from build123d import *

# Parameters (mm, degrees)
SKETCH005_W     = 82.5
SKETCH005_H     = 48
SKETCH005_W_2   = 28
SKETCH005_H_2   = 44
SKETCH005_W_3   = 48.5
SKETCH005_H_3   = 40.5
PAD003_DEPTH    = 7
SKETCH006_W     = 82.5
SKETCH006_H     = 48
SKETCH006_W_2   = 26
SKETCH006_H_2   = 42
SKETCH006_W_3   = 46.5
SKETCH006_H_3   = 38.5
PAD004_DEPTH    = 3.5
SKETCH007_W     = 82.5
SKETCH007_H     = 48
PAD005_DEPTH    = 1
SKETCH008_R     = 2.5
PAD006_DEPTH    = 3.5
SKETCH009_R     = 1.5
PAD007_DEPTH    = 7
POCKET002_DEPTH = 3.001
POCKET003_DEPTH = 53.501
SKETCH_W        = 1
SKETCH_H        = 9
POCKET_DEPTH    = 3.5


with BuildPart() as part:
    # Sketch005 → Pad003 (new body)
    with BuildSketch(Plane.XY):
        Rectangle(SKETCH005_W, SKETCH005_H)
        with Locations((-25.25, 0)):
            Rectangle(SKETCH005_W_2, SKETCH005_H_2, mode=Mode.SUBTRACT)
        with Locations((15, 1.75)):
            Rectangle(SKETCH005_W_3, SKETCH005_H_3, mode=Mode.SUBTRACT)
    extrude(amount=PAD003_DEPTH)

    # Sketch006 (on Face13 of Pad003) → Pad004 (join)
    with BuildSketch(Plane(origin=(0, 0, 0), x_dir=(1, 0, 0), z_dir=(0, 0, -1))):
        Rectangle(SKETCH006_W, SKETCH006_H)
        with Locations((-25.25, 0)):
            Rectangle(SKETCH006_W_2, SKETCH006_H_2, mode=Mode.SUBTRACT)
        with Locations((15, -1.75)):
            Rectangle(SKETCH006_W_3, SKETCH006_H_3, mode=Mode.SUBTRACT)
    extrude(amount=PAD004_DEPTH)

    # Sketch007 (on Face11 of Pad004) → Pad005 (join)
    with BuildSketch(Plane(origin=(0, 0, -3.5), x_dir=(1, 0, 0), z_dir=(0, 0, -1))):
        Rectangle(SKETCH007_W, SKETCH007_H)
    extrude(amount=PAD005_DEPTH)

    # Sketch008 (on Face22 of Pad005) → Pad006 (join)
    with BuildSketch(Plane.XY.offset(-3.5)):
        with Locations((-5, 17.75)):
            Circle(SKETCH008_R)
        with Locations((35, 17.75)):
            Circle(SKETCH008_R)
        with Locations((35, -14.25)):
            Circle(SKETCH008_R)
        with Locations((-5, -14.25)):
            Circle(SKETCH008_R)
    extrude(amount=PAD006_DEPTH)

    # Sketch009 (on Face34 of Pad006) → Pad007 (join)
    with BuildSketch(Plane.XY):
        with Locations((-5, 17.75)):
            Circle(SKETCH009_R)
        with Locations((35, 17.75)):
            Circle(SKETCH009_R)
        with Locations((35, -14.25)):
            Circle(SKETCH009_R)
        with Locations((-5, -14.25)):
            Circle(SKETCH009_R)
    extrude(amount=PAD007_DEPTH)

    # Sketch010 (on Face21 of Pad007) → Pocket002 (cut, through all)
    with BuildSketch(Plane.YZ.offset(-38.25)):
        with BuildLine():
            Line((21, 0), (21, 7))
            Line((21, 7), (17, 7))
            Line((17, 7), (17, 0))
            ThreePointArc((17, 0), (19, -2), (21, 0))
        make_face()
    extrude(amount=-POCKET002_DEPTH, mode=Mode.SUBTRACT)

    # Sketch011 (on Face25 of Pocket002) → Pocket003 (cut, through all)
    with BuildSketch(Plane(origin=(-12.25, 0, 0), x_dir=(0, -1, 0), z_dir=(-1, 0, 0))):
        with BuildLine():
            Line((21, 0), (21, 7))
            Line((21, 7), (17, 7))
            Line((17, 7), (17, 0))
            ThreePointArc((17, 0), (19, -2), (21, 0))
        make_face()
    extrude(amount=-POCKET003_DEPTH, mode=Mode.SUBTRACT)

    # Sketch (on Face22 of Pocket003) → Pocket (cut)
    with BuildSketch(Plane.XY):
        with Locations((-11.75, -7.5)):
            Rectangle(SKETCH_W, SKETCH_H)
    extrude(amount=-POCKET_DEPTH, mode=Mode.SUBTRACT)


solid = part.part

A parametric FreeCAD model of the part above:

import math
import FreeCAD as App
import Part
import Sketcher

doc = App.newDocument("Part")
body = doc.addObject("PartDesign::Body", "Body")

# Sketch on XY plane
sketch1 = doc.addObject("Sketcher::SketchObject", "Sketch")
body.addObject(sketch1)
sketch1.AttachmentSupport = (doc.XY_Plane, [""])
sketch1.MapMode = "FlatFace"
sketch1.addGeometry(Part.LineSegment(App.Vector(-41, 24, 0), App.Vector(-41, -24, 0)), False)
sketch1.addGeometry(Part.LineSegment(App.Vector(-41, -24, 0), App.Vector(41, -24, 0)), False)
sketch1.addGeometry(Part.LineSegment(App.Vector(41, -24, 0), App.Vector(41, 24, 0)), False)
sketch1.addGeometry(Part.LineSegment(App.Vector(41, 24, 0), App.Vector(-41, 24, 0)), False)
sketch1.addGeometry(Part.LineSegment(App.Vector(-11, -22, 0), App.Vector(-39, -22, 0)), False)
sketch1.addGeometry(Part.LineSegment(App.Vector(-39, -22, 0), App.Vector(-39, 22, 0)), False)
sketch1.addGeometry(Part.LineSegment(App.Vector(-39, 22, 0), App.Vector(-11, 22, 0)), False)
sketch1.addGeometry(Part.LineSegment(App.Vector(-11, 22, 0), App.Vector(-11, -22, 0)), False)
sketch1.addGeometry(Part.LineSegment(App.Vector(39, -18, 0), App.Vector(-9, -18, 0)), False)
sketch1.addGeometry(Part.LineSegment(App.Vector(-9, -18, 0), App.Vector(-9, 22, 0)), False)
sketch1.addGeometry(Part.LineSegment(App.Vector(-9, 22, 0), App.Vector(39, 22, 0)), False)
sketch1.addGeometry(Part.LineSegment(App.Vector(39, 22, 0), App.Vector(39, -18, 0)), False)
sketch1.addConstraint(Sketcher.Constraint("Coincident", 0, 2, 1, 1))
sketch1.addConstraint(Sketcher.Constraint("Coincident", 1, 2, 2, 1))
sketch1.addConstraint(Sketcher.Constraint("Coincident", 2, 2, 3, 1))
sketch1.addConstraint(Sketcher.Constraint("Coincident", 3, 2, 0, 1))
sketch1.addConstraint(Sketcher.Constraint("Coincident", 4, 2, 5, 1))
sketch1.addConstraint(Sketcher.Constraint("Coincident", 5, 2, 6, 1))
sketch1.addConstraint(Sketcher.Constraint("Coincident", 6, 2, 7, 1))
sketch1.addConstraint(Sketcher.Constraint("Coincident", 7, 2, 4, 1))
sketch1.addConstraint(Sketcher.Constraint("Coincident", 8, 2, 9, 1))
sketch1.addConstraint(Sketcher.Constraint("Coincident", 9, 2, 10, 1))
sketch1.addConstraint(Sketcher.Constraint("Coincident", 10, 2, 11, 1))
sketch1.addConstraint(Sketcher.Constraint("Coincident", 11, 2, 8, 1))
sketch1.addConstraint(Sketcher.Constraint("Vertical", 0))
sketch1.addConstraint(Sketcher.Constraint("Horizontal", 1))
sketch1.addConstraint(Sketcher.Constraint("Vertical", 2))
sketch1.addConstraint(Sketcher.Constraint("Horizontal", 3))
sketch1.addConstraint(Sketcher.Constraint("Horizontal", 4))
sketch1.addConstraint(Sketcher.Constraint("Vertical", 5))
sketch1.addConstraint(Sketcher.Constraint("Horizontal", 6))
sketch1.addConstraint(Sketcher.Constraint("Vertical", 7))
sketch1.addConstraint(Sketcher.Constraint("Horizontal", 8))
sketch1.addConstraint(Sketcher.Constraint("Vertical", 9))
sketch1.addConstraint(Sketcher.Constraint("Horizontal", 10))
sketch1.addConstraint(Sketcher.Constraint("Vertical", 11))
sketch1.addConstraint(Sketcher.Constraint("Symmetric", 0, 2, 2, 2, -1, 1))
sketch1.addConstraint(Sketcher.Constraint("Symmetric", 4, 2, 10, 2, -1, 1))
sketch1.addConstraint(Sketcher.Constraint("Horizontal", 6, 2, 9, 2))
sketch1.addConstraint(Sketcher.Constraint("DistanceX", 4, 2, 4, 1, 28.0))
sketch1.addConstraint(Sketcher.Constraint("DistanceY", 0, 2, 0, 1, 48.0))
sketch1.addConstraint(Sketcher.Constraint("DistanceY", 5, 1, 5, 2, 44.0))
sketch1.addConstraint(Sketcher.Constraint("DistanceX", 1, 1, 1, 2, 82.5))
sketch1.addConstraint(Sketcher.Constraint("DistanceX", 8, 2, 8, 1, 48.5))
sketch1.addConstraint(Sketcher.Constraint("DistanceY", 9, 1, 9, 2, 40.5))
sketch1.addConstraint(Sketcher.Constraint("DistanceX", 0, 2, 4, 2, 2.0))
pad1 = doc.addObject("PartDesign::Pad", "Pad")
body.addObject(pad1)
pad1.Profile = sketch1
pad1.Length = 7

# Sketch on XY plane
sketch2 = doc.addObject("Sketcher::SketchObject", "Sketch001")
body.addObject(sketch2)
sketch2.AttachmentSupport = (doc.XY_Plane, [""])
sketch2.MapMode = "FlatFace"
sketch2.addGeometry(Part.LineSegment(App.Vector(-41, -24, 0), App.Vector(-41, 24, 0)), False)
sketch2.addGeometry(Part.LineSegment(App.Vector(-41, 24, 0), App.Vector(41, 24, 0)), False)
sketch2.addGeometry(Part.LineSegment(App.Vector(41, 24, 0), App.Vector(41, -24, 0)), False)
sketch2.addGeometry(Part.LineSegment(App.Vector(41, -24, 0), App.Vector(-41, -24, 0)), False)
sketch2.addGeometry(Part.LineSegment(App.Vector(38, 21, 0), App.Vector(-8, 21, 0)), False)
sketch2.addGeometry(Part.LineSegment(App.Vector(-8, 21, 0), App.Vector(-8, -18, 0)), False)
sketch2.addGeometry(Part.LineSegment(App.Vector(-8, -18, 0), App.Vector(38, -18, 0)), False)
sketch2.addGeometry(Part.LineSegment(App.Vector(38, -18, 0), App.Vector(38, 21, 0)), False)
sketch2.addGeometry(Part.LineSegment(App.Vector(-12, 21, 0), App.Vector(-38, 21, 0)), False)
sketch2.addGeometry(Part.LineSegment(App.Vector(-38, 21, 0), App.Vector(-38, -21, 0)), False)
sketch2.addGeometry(Part.LineSegment(App.Vector(-38, -21, 0), App.Vector(-12, -21, 0)), False)
sketch2.addGeometry(Part.LineSegment(App.Vector(-12, -21, 0), App.Vector(-12, 21, 0)), False)
sketch2.addConstraint(Sketcher.Constraint("Coincident", 0, 2, 1, 1))
sketch2.addConstraint(Sketcher.Constraint("Coincident", 1, 2, 2, 1))
sketch2.addConstraint(Sketcher.Constraint("Coincident", 2, 2, 3, 1))
sketch2.addConstraint(Sketcher.Constraint("Coincident", 3, 2, 0, 1))
sketch2.addConstraint(Sketcher.Constraint("Coincident", 4, 2, 5, 1))
sketch2.addConstraint(Sketcher.Constraint("Coincident", 5, 2, 6, 1))
sketch2.addConstraint(Sketcher.Constraint("Coincident", 6, 2, 7, 1))
sketch2.addConstraint(Sketcher.Constraint("Coincident", 7, 2, 4, 1))
sketch2.addConstraint(Sketcher.Constraint("Coincident", 8, 2, 9, 1))
sketch2.addConstraint(Sketcher.Constraint("Coincident", 9, 2, 10, 1))
sketch2.addConstraint(Sketcher.Constraint("Coincident", 10, 2, 11, 1))
sketch2.addConstraint(Sketcher.Constraint("Coincident", 11, 2, 8, 1))
sketch2.addConstraint(Sketcher.Constraint("Vertical", 0))
sketch2.addConstraint(Sketcher.Constraint("Horizontal", 1))
sketch2.addConstraint(Sketcher.Constraint("Vertical", 2))
sketch2.addConstraint(Sketcher.Constraint("Horizontal", 3))
sketch2.addConstraint(Sketcher.Constraint("Horizontal", 4))
sketch2.addConstraint(Sketcher.Constraint("Vertical", 5))
sketch2.addConstraint(Sketcher.Constraint("Horizontal", 6))
sketch2.addConstraint(Sketcher.Constraint("Vertical", 7))
sketch2.addConstraint(Sketcher.Constraint("Horizontal", 8))
sketch2.addConstraint(Sketcher.Constraint("Vertical", 9))
sketch2.addConstraint(Sketcher.Constraint("Horizontal", 10))
sketch2.addConstraint(Sketcher.Constraint("Vertical", 11))
sketch2.addConstraint(Sketcher.Constraint("Symmetric", 0, 2, 2, 2, -1, 1))
sketch2.addConstraint(Sketcher.Constraint("Symmetric", 7, 2, 9, 2, -1, 1))
sketch2.addConstraint(Sketcher.Constraint("Horizontal", 7, 2, 8, 2))
sketch2.addConstraint(Sketcher.Constraint("DistanceX", 8, 2, 8, 1, 26.0))
sketch2.addConstraint(Sketcher.Constraint("DistanceY", 0, 1, 0, 2, 48.0))
sketch2.addConstraint(Sketcher.Constraint("DistanceY", 9, 2, 9, 1, 42.0))
sketch2.addConstraint(Sketcher.Constraint("DistanceX", 1, 1, 1, 2, 82.5))
sketch2.addConstraint(Sketcher.Constraint("DistanceX", 4, 2, 4, 1, 46.5))
sketch2.addConstraint(Sketcher.Constraint("DistanceY", 5, 2, 5, 1, 38.5))
sketch2.addConstraint(Sketcher.Constraint("DistanceX", 0, 2, 4, 2, 33.0))
pad2 = doc.addObject("PartDesign::Pad", "Pad001")
body.addObject(pad2)
pad2.Profile = sketch2
pad2.Length = 3.5
pad2.Reversed = True

# Sketch on XY plane
sketch3 = doc.addObject("Sketcher::SketchObject", "Sketch002")
body.addObject(sketch3)
sketch3.AttachmentSupport = (doc.XY_Plane, [""])
sketch3.MapMode = "FlatFace"
sketch3.AttachmentOffset = App.Placement(App.Vector(0, 0, -3.5), App.Rotation())
sketch3.addGeometry(Part.LineSegment(App.Vector(-41, -24, 0), App.Vector(-41, 24, 0)), False)
sketch3.addGeometry(Part.LineSegment(App.Vector(-41, 24, 0), App.Vector(41, 24, 0)), False)
sketch3.addGeometry(Part.LineSegment(App.Vector(41, 24, 0), App.Vector(41, -24, 0)), False)
sketch3.addGeometry(Part.LineSegment(App.Vector(41, -24, 0), App.Vector(-41, -24, 0)), False)
sketch3.addConstraint(Sketcher.Constraint("Coincident", 0, 2, 1, 1))
sketch3.addConstraint(Sketcher.Constraint("Coincident", 1, 2, 2, 1))
sketch3.addConstraint(Sketcher.Constraint("Coincident", 2, 2, 3, 1))
sketch3.addConstraint(Sketcher.Constraint("Coincident", 3, 2, 0, 1))
sketch3.addConstraint(Sketcher.Constraint("Vertical", 0))
sketch3.addConstraint(Sketcher.Constraint("Horizontal", 1))
sketch3.addConstraint(Sketcher.Constraint("Vertical", 2))
sketch3.addConstraint(Sketcher.Constraint("Horizontal", 3))
sketch3.addConstraint(Sketcher.Constraint("Symmetric", 0, 2, 2, 2, -1, 1))
sketch3.addConstraint(Sketcher.Constraint("DistanceY", 0, 1, 0, 2, 48.0))
sketch3.addConstraint(Sketcher.Constraint("DistanceX", 1, 1, 1, 2, 82.5))
pad3 = doc.addObject("PartDesign::Pad", "Pad002")
body.addObject(pad3)
pad3.Profile = sketch3
pad3.Length = 1
pad3.Reversed = True

# Sketch on XY plane
sketch4 = doc.addObject("Sketcher::SketchObject", "Sketch003")
body.addObject(sketch4)
sketch4.AttachmentSupport = (doc.XY_Plane, [""])
sketch4.MapMode = "FlatFace"
sketch4.AttachmentOffset = App.Placement(App.Vector(0, 0, -3.5), App.Rotation())
sketch4.addGeometry(Part.Circle(App.Vector(-5, 17.8, 0), App.Vector(0, 0, 1), 2.5), False)
sketch4.addGeometry(Part.Circle(App.Vector(35, 17.8, 0), App.Vector(0, 0, 1), 2.5), False)
sketch4.addGeometry(Part.Circle(App.Vector(35, -14.2, 0), App.Vector(0, 0, 1), 2.5), False)
sketch4.addGeometry(Part.Circle(App.Vector(-5, -14.2, 0), App.Vector(0, 0, 1), 2.5), False)
sketch4.addConstraint(Sketcher.Constraint("Equal", 0, 1))
sketch4.addConstraint(Sketcher.Constraint("Equal", 1, 2))
sketch4.addConstraint(Sketcher.Constraint("Equal", 2, 3))
sketch4.addConstraint(Sketcher.Constraint("Horizontal", 0, 3, 1, 3))
sketch4.addConstraint(Sketcher.Constraint("Horizontal", 2, 3, 3, 3))
sketch4.addConstraint(Sketcher.Constraint("Vertical", 1, 3, 2, 3))
sketch4.addConstraint(Sketcher.Constraint("Vertical", 0, 3, 3, 3))
sketch4.addConstraint(Sketcher.Constraint("Diameter", 0, 5.0))
sketch4.addConstraint(Sketcher.Constraint("DistanceX", 0, 3, -1, 1, 5.0))
sketch4.addConstraint(Sketcher.Constraint("DistanceX", -1, 1, 1, 3, 35.0))
sketch4.addConstraint(Sketcher.Constraint("DistanceY", 2, 3, 1, 3, 32.0))
sketch4.addConstraint(Sketcher.Constraint("DistanceY", -1, 1, 0, 3, 17.75))
pad4 = doc.addObject("PartDesign::Pad", "Pad003")
body.addObject(pad4)
pad4.Profile = sketch4
pad4.Length = 3.5

# Sketch on XY plane
sketch5 = doc.addObject("Sketcher::SketchObject", "Sketch004")
body.addObject(sketch5)
sketch5.AttachmentSupport = (doc.XY_Plane, [""])
sketch5.MapMode = "FlatFace"
sketch5.addGeometry(Part.Circle(App.Vector(-5, 17.8, 0), App.Vector(0, 0, 1), 1.5), False)
sketch5.addGeometry(Part.Circle(App.Vector(35, 17.8, 0), App.Vector(0, 0, 1), 1.5), False)
sketch5.addGeometry(Part.Circle(App.Vector(35, -14.2, 0), App.Vector(0, 0, 1), 1.5), False)
sketch5.addGeometry(Part.Circle(App.Vector(-5, -14.2, 0), App.Vector(0, 0, 1), 1.5), False)
sketch5.addConstraint(Sketcher.Constraint("Equal", 0, 1))
sketch5.addConstraint(Sketcher.Constraint("Equal", 1, 2))
sketch5.addConstraint(Sketcher.Constraint("Equal", 2, 3))
sketch5.addConstraint(Sketcher.Constraint("Horizontal", 0, 3, 1, 3))
sketch5.addConstraint(Sketcher.Constraint("Horizontal", 2, 3, 3, 3))
sketch5.addConstraint(Sketcher.Constraint("Vertical", 1, 3, 2, 3))
sketch5.addConstraint(Sketcher.Constraint("Vertical", 0, 3, 3, 3))
sketch5.addConstraint(Sketcher.Constraint("Diameter", 0, 3.0))
sketch5.addConstraint(Sketcher.Constraint("DistanceX", 0, 3, -1, 1, 5.0))
sketch5.addConstraint(Sketcher.Constraint("DistanceX", -1, 1, 1, 3, 35.0))
sketch5.addConstraint(Sketcher.Constraint("DistanceY", 2, 3, 1, 3, 32.0))
sketch5.addConstraint(Sketcher.Constraint("DistanceY", -1, 1, 0, 3, 17.75))
pad5 = doc.addObject("PartDesign::Pad", "Pad004")
body.addObject(pad5)
pad5.Profile = sketch5
pad5.Length = 7

# Sketch on YZ plane
sketch6 = doc.addObject("Sketcher::SketchObject", "Sketch005")
body.addObject(sketch6)
sketch6.AttachmentSupport = (doc.YZ_Plane, [""])
sketch6.MapMode = "FlatFace"
sketch6.AttachmentOffset = App.Placement(App.Vector(0, 0, -38.25), App.Rotation())
sketch6.addGeometry(Part.LineSegment(App.Vector(21, 0, 0), App.Vector(21, 7, 0)), False)
sketch6.addGeometry(Part.LineSegment(App.Vector(21, 7, 0), App.Vector(17, 7, 0)), False)
sketch6.addGeometry(Part.LineSegment(App.Vector(17, 7, 0), App.Vector(17, 0, 0)), False)
sketch6.addGeometry(Part.ArcOfCircle(Part.Circle(App.Vector(19, 0, 0), App.Vector(0, 0, 1), 2), math.radians(180), math.radians(360)), False)
sketch6.addConstraint(Sketcher.Constraint("Coincident", 0, 2, 1, 1))
sketch6.addConstraint(Sketcher.Constraint("Coincident", 1, 2, 2, 1))
sketch6.addConstraint(Sketcher.Constraint("Tangent", 2, 2, 3, 1))
sketch6.addConstraint(Sketcher.Constraint("Tangent", 3, 2, 0, 1))
sketch6.addConstraint(Sketcher.Constraint("Vertical", 0))
sketch6.addConstraint(Sketcher.Constraint("Horizontal", 1))
sketch6.addConstraint(Sketcher.Constraint("Vertical", 2))
sketch6.addConstraint(Sketcher.Constraint("PointOnObject", 3, 3, -1))
sketch6.addConstraint(Sketcher.Constraint("Radius", 3, 2.0))
sketch6.addConstraint(Sketcher.Constraint("DistanceY", 0, 1, 0, 2, 7.0))
sketch6.addConstraint(Sketcher.Constraint("DistanceX", -1, 1, 3, 3, 19.0))
pocket1 = doc.addObject("PartDesign::Pocket", "Pocket")
body.addObject(pocket1)
pocket1.Profile = sketch6
pocket1.Type = "ThroughAll"

# Sketch on YZ plane
sketch7 = doc.addObject("Sketcher::SketchObject", "Sketch006")
body.addObject(sketch7)
sketch7.AttachmentSupport = (doc.YZ_Plane, [""])
sketch7.MapMode = "FlatFace"
sketch7.AttachmentOffset = App.Placement(App.Vector(0, 0, -12.25), App.Rotation())
sketch7.addGeometry(Part.LineSegment(App.Vector(-21, 0, 0), App.Vector(-21, 7, 0)), False)
sketch7.addGeometry(Part.LineSegment(App.Vector(-21, 7, 0), App.Vector(-17, 7, 0)), False)
sketch7.addGeometry(Part.LineSegment(App.Vector(-17, 7, 0), App.Vector(-17, 0, 0)), False)
sketch7.addGeometry(Part.ArcOfCircle(Part.Circle(App.Vector(-19, 0, 0), App.Vector(0, 0, 1), 2), math.radians(180), math.radians(360)), False)
sketch7.addConstraint(Sketcher.Constraint("Coincident", 0, 2, 1, 1))
sketch7.addConstraint(Sketcher.Constraint("Coincident", 1, 2, 2, 1))
sketch7.addConstraint(Sketcher.Constraint("Tangent", 2, 2, 3, 2))
sketch7.addConstraint(Sketcher.Constraint("Tangent", 3, 1, 0, 1))
sketch7.addConstraint(Sketcher.Constraint("Vertical", 0))
sketch7.addConstraint(Sketcher.Constraint("Horizontal", 1))
sketch7.addConstraint(Sketcher.Constraint("Vertical", 2))
sketch7.addConstraint(Sketcher.Constraint("PointOnObject", 3, 3, -1))
sketch7.addConstraint(Sketcher.Constraint("Radius", 3, 2.0))
sketch7.addConstraint(Sketcher.Constraint("DistanceY", 0, 1, 0, 2, 7.0))
sketch7.addConstraint(Sketcher.Constraint("DistanceX", 3, 3, -1, 1, 19.0))
pocket2 = doc.addObject("PartDesign::Pocket", "Pocket001")
body.addObject(pocket2)
pocket2.Profile = sketch7
pocket2.Type = "ThroughAll"
pocket2.Reversed = True

# Sketch on XY plane
sketch8 = doc.addObject("Sketcher::SketchObject", "Sketch007")
body.addObject(sketch8)
sketch8.AttachmentSupport = (doc.XY_Plane, [""])
sketch8.MapMode = "FlatFace"
sketch8.addGeometry(Part.LineSegment(App.Vector(-12.2, -3, 0), App.Vector(-12.2, -12, 0)), False)
sketch8.addGeometry(Part.LineSegment(App.Vector(-12.2, -12, 0), App.Vector(-11.2, -12, 0)), False)
sketch8.addGeometry(Part.LineSegment(App.Vector(-11.2, -12, 0), App.Vector(-11.2, -3, 0)), False)
sketch8.addGeometry(Part.LineSegment(App.Vector(-11.2, -3, 0), App.Vector(-12.2, -3, 0)), False)
sketch8.addConstraint(Sketcher.Constraint("Coincident", 0, 2, 1, 1))
sketch8.addConstraint(Sketcher.Constraint("Coincident", 1, 2, 2, 1))
sketch8.addConstraint(Sketcher.Constraint("Coincident", 2, 2, 3, 1))
sketch8.addConstraint(Sketcher.Constraint("Coincident", 3, 2, 0, 1))
sketch8.addConstraint(Sketcher.Constraint("Vertical", 0))
sketch8.addConstraint(Sketcher.Constraint("Horizontal", 1))
sketch8.addConstraint(Sketcher.Constraint("Vertical", 2))
sketch8.addConstraint(Sketcher.Constraint("Horizontal", 3))
sketch8.addConstraint(Sketcher.Constraint("DistanceX", 1, 1, 1, 2, 1.0))
sketch8.addConstraint(Sketcher.Constraint("DistanceY", 0, 2, 0, 1, 9.0))
sketch8.addConstraint(Sketcher.Constraint("DistanceY", 0, 2, -1, 1, 12.0))
sketch8.addConstraint(Sketcher.Constraint("DistanceX", 0, 2, -1, 1, 12.25))
pocket3 = doc.addObject("PartDesign::Pocket", "Pocket002")
body.addObject(pocket3)
pocket3.Profile = sketch8
pocket3.Length = 3.5

doc.recompute()
